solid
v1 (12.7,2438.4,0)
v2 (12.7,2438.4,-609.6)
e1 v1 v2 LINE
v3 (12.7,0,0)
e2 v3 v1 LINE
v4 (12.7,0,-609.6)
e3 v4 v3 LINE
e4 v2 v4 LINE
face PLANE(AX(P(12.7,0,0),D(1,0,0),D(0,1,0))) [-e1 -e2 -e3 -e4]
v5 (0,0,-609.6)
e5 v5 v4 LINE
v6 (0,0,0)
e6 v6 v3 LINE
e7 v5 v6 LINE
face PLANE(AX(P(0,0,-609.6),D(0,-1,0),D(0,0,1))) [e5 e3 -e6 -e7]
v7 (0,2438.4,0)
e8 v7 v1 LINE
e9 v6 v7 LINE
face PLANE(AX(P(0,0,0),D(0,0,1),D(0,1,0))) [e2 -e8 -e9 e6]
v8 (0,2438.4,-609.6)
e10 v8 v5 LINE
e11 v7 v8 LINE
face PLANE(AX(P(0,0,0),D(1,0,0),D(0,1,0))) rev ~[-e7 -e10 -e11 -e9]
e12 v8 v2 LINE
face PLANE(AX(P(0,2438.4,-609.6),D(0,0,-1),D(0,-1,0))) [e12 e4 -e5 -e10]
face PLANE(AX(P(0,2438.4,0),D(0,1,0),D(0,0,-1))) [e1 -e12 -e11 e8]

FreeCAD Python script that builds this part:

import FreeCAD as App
import Part
import Sketcher
from FreeCAD import Vector
Q = App.Units.Quantity

doc = App.newDocument("Part")
params = doc.addObject("Spreadsheet::Sheet", "Params")
for row, (alias, value) in enumerate([
    ("sketch1_width", "96 in"),
    ("sketch1_height", "24 in"),
    ("pad1_length", "0.5 in"),
], start=1):
    params.set(f"A{row}", alias)
    params.set(f"B{row}", "=" + value)
    params.setAlias(f"B{row}", alias)

body = doc.addObject("PartDesign::Body", "Body")

sketch1 = body.newObject("Sketcher::SketchObject", "Sketch")
sketch1.AttachmentSupport = (doc.getObject("YZ_Plane"), [""])
sketch1.MapMode = "FlatFace"
sketch1.addGeometry(Part.LineSegment(Vector(2438.4, 0, 0), Vector(0, 0, 0)), False)
sketch1.addGeometry(Part.LineSegment(Vector(0, 0, 0), Vector(0, -609.6, 0)), False)
sketch1.addGeometry(Part.LineSegment(Vector(0, -609.6, 0), Vector(2438.4, -609.6, 0)), False)
sketch1.addGeometry(Part.LineSegment(Vector(2438.4, -609.6, 0), Vector(2438.4, 0, 0)), False)
sketch1.addConstraint(Sketcher.Constraint("Coincident", 0, 2, 1, 1))
sketch1.addConstraint(Sketcher.Constraint("Coincident", 1, 2, 2, 1))
sketch1.addConstraint(Sketcher.Constraint("Coincident", 2, 2, 3, 1))
sketch1.addConstraint(Sketcher.Constraint("Coincident", 3, 2, 0, 1))
sketch1.addConstraint(Sketcher.Constraint("Horizontal", 0))
sketch1.addConstraint(Sketcher.Constraint("Vertical", 1))
sketch1.addConstraint(Sketcher.Constraint("Horizontal", 2))
sketch1.addConstraint(Sketcher.Constraint("Vertical", 3))
sketch1.addConstraint(Sketcher.Constraint("Coincident", 0, 2, -1, 1))
sketch1.addConstraint(Sketcher.Constraint("DistanceX", 0, 2, 0, 1, Q("96 in")))
sketch1.addConstraint(Sketcher.Constraint("DistanceY", 1, 2, 1, 1, Q("24 in")))
sketch1.setExpression("Constraints[9]", "Params.sketch1_width")
sketch1.setExpression("Constraints[10]", "Params.sketch1_height")
pad1 = body.newObject("PartDesign::Pad", "Pad")
pad1.Profile = sketch1
pad1.setExpression("Length", "Params.pad1_length")

doc.recompute()
